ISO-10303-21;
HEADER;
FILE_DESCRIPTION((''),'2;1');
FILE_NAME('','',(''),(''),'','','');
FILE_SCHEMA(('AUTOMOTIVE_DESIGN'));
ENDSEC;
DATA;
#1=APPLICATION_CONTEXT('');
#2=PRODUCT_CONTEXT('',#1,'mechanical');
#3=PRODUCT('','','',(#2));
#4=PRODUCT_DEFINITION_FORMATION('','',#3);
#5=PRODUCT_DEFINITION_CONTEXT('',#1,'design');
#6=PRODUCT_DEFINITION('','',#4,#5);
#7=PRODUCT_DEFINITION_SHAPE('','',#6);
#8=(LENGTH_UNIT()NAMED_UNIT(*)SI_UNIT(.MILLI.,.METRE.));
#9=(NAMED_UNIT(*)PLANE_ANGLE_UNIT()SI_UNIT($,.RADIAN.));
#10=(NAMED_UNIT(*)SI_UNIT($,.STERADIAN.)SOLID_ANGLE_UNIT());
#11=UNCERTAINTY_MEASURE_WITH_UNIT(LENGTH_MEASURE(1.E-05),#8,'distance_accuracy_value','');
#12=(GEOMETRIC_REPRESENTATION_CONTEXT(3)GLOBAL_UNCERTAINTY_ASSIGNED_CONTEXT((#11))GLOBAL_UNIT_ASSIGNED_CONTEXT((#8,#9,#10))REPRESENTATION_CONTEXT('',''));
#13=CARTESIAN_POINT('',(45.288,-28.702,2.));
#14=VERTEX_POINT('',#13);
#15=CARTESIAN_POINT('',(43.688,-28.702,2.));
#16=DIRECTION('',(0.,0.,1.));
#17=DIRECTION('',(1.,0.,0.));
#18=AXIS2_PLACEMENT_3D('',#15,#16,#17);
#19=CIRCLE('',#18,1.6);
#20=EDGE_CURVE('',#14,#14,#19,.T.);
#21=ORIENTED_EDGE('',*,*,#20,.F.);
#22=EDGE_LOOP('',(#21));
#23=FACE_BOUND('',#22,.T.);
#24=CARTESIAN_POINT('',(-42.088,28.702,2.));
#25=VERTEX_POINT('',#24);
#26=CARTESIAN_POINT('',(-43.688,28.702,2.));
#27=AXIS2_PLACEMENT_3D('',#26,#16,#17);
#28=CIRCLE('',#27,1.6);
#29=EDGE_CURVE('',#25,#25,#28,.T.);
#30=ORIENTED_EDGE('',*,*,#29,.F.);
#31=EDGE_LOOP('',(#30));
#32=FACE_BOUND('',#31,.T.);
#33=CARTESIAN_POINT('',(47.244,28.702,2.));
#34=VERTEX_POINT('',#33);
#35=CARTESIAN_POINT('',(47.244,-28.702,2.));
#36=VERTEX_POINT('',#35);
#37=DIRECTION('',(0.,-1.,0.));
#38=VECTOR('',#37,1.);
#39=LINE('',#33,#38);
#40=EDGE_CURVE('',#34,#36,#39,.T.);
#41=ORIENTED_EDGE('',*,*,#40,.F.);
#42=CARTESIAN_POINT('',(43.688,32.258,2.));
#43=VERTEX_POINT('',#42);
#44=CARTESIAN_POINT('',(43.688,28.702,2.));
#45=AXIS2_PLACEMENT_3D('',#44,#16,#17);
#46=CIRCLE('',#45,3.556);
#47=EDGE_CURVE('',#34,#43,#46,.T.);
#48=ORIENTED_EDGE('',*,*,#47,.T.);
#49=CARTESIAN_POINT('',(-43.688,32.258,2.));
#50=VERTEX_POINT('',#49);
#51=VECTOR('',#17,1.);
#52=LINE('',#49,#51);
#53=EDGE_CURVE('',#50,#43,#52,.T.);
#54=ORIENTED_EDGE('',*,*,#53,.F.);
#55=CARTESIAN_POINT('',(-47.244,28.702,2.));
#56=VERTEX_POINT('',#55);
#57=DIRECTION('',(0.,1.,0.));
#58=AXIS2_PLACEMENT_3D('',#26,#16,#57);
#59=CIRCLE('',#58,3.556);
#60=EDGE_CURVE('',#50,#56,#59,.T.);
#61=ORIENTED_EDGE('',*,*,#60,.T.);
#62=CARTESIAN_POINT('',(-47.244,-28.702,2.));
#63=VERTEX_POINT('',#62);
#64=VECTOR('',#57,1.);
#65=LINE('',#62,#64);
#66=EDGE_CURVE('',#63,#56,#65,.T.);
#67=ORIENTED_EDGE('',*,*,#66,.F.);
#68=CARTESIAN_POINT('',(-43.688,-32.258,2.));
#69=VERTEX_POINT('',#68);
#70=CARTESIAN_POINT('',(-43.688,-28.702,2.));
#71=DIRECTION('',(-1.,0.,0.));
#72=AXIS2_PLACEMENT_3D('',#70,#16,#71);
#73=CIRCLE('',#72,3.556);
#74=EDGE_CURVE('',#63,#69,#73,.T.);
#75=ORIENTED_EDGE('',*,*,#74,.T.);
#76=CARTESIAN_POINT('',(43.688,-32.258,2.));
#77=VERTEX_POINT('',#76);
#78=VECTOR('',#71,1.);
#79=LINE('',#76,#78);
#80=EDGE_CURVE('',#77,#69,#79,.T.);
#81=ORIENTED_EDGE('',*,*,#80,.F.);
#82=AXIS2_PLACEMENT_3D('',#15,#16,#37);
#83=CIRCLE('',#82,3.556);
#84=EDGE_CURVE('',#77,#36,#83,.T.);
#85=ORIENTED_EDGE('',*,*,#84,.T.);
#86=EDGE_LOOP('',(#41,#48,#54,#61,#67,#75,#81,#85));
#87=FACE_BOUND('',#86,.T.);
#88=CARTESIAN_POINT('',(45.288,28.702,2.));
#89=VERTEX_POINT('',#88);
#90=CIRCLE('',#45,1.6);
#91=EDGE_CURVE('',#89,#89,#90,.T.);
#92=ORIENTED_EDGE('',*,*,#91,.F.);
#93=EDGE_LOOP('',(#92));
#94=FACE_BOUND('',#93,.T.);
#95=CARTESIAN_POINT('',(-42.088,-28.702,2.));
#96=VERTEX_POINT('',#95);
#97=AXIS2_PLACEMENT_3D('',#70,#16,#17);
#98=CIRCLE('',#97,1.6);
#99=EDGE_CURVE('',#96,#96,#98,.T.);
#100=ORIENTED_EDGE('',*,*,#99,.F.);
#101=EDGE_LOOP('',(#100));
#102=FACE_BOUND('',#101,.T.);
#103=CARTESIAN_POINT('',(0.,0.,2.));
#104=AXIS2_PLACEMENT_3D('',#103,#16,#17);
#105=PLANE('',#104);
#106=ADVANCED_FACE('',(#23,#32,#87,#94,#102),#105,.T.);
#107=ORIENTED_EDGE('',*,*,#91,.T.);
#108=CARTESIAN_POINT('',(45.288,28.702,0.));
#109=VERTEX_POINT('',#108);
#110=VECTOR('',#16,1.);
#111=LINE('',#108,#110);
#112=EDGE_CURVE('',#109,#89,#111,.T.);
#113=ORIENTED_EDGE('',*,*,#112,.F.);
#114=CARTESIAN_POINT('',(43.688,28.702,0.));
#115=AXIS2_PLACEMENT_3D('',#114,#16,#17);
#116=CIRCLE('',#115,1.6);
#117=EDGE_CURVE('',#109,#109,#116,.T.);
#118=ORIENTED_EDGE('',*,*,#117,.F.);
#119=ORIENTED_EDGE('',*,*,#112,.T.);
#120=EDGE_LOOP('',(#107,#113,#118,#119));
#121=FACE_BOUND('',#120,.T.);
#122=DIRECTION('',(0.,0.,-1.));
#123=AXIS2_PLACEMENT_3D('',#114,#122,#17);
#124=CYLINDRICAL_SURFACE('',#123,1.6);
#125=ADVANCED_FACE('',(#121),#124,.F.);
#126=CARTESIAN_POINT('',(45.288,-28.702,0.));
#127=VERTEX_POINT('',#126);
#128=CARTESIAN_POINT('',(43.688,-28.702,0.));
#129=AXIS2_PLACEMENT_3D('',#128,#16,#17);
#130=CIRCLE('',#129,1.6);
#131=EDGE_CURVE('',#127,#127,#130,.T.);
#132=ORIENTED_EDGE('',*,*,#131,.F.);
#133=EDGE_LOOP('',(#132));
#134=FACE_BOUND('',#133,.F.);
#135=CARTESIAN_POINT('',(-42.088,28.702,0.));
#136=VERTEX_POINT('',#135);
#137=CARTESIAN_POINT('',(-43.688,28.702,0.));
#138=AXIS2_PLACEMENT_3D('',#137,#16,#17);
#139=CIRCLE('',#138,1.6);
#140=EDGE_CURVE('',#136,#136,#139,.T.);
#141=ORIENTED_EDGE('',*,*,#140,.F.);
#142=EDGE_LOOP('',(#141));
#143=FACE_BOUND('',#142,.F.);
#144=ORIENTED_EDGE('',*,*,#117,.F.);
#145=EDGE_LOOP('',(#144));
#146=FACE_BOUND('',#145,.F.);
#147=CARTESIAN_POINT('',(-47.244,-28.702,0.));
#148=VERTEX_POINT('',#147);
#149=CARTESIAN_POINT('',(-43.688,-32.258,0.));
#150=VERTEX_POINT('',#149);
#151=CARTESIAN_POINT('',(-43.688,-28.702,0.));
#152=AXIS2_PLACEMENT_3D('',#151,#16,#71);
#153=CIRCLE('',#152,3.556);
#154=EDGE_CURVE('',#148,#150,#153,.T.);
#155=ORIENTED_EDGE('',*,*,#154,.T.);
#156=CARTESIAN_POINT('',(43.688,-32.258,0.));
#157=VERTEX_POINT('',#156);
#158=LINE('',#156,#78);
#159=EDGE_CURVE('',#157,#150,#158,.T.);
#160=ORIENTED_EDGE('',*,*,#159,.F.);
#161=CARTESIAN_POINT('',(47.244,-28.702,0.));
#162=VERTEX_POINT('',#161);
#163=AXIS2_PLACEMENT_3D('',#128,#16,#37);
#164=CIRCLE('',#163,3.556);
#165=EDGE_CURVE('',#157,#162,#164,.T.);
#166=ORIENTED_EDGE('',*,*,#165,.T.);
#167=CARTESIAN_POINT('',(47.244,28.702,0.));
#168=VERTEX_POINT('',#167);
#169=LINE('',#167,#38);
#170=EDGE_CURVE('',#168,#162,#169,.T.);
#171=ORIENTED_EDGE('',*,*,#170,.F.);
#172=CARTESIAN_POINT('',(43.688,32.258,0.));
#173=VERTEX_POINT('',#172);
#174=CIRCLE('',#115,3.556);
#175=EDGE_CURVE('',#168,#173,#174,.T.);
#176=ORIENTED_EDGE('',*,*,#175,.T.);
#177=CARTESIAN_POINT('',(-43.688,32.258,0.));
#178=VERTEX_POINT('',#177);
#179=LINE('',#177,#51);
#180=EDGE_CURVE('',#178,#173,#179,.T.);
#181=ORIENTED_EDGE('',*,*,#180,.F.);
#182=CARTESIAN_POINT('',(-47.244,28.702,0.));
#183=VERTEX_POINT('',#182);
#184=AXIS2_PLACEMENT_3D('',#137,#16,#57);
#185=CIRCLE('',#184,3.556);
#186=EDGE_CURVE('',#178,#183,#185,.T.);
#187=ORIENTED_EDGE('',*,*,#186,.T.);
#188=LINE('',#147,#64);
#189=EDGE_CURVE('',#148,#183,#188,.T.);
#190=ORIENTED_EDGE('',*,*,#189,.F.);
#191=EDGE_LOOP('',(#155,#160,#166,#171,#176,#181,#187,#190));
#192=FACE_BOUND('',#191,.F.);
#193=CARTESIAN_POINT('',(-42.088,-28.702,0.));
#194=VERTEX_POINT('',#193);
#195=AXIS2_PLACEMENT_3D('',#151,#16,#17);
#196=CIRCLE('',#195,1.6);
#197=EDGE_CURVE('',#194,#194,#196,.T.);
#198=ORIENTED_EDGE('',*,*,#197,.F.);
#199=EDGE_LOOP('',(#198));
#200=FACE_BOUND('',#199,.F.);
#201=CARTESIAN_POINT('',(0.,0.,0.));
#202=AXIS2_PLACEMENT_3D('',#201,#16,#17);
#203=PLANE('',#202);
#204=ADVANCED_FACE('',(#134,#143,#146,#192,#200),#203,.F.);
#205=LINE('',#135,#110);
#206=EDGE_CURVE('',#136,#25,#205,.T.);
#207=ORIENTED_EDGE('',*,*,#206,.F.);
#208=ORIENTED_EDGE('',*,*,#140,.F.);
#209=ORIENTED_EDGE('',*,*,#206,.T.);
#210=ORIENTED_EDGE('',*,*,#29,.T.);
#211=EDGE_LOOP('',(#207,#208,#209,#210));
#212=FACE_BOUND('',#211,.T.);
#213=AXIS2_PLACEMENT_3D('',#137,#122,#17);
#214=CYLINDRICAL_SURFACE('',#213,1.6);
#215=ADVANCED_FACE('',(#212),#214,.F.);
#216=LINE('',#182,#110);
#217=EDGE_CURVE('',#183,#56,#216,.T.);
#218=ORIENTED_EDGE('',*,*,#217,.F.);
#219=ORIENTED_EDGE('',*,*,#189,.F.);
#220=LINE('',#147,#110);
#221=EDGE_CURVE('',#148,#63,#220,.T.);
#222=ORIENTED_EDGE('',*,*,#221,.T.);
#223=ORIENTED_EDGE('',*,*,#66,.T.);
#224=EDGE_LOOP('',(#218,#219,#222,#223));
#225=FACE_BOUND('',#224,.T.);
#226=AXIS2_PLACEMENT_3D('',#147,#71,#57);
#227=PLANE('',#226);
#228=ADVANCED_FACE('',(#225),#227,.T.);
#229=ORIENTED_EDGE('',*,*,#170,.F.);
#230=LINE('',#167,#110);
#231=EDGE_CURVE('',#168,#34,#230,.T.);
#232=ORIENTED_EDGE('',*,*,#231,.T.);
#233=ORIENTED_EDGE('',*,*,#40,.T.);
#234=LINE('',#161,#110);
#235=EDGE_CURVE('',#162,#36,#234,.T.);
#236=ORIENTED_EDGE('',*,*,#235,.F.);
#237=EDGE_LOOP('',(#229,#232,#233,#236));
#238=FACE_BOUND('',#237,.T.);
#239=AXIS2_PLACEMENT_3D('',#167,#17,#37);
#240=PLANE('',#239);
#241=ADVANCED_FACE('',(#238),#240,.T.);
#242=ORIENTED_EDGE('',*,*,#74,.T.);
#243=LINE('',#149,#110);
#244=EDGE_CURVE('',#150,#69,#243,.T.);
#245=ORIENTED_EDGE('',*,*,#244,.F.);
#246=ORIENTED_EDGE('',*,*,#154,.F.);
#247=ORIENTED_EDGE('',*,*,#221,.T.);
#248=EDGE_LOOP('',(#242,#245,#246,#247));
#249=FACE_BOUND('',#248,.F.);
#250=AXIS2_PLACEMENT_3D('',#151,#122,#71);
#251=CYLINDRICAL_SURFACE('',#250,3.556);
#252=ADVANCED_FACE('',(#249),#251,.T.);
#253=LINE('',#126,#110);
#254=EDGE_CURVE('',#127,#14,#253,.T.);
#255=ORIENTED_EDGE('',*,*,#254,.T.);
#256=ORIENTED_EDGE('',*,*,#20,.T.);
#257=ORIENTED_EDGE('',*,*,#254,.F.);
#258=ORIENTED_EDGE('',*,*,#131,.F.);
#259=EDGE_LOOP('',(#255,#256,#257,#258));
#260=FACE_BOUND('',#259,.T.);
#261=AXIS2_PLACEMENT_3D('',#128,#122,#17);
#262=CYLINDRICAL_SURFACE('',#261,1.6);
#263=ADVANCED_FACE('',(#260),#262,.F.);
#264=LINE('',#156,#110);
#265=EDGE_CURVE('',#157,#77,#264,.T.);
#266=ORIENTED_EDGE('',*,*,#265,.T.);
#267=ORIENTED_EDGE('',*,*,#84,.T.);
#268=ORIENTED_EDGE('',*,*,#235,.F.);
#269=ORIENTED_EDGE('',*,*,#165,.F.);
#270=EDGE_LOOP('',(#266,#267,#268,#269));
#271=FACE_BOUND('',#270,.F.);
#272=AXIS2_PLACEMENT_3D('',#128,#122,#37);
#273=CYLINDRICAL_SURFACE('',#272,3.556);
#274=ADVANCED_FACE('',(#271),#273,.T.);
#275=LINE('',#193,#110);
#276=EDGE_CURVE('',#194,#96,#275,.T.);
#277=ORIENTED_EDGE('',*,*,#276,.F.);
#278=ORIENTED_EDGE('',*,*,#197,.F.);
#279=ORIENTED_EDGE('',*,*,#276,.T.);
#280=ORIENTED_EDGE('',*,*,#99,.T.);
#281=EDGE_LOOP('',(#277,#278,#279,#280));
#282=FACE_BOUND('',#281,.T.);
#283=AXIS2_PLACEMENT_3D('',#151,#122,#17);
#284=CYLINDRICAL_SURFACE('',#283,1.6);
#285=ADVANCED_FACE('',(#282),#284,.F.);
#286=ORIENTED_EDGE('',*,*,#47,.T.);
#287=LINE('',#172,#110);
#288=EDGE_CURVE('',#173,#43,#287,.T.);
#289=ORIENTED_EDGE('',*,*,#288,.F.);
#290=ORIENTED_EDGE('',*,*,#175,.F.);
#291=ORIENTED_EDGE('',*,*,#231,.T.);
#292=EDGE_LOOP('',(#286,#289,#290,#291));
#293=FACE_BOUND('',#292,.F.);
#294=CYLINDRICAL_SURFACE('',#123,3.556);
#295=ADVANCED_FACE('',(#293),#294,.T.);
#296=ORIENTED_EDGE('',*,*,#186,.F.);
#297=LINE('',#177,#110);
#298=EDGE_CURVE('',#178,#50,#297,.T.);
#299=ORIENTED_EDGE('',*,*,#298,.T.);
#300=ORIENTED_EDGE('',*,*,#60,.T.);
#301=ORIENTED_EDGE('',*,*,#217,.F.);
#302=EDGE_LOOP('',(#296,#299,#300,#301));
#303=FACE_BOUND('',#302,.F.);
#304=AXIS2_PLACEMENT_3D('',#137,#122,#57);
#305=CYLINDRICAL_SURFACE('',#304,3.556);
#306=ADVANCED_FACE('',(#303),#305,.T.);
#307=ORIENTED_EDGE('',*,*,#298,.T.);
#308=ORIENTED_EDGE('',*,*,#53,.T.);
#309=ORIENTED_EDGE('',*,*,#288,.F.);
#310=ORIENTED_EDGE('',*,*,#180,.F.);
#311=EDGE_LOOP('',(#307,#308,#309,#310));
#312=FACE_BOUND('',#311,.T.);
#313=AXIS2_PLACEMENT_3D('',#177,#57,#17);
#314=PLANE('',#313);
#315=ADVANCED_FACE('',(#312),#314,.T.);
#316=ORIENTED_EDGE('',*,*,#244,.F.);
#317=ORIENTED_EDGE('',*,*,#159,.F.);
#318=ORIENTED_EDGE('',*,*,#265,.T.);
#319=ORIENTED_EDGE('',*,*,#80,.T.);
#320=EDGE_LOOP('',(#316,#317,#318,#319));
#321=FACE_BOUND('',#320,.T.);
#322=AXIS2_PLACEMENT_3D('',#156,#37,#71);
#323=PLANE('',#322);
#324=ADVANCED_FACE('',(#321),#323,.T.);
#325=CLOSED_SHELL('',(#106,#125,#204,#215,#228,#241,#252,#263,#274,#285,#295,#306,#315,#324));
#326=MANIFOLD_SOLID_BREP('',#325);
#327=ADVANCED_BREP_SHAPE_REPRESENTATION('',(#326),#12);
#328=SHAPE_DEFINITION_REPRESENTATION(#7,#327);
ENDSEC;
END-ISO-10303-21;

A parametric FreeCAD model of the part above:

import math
import FreeCAD as App
import Part
import Sketcher

V = App.Vector
Q = App.Units.Quantity

doc = App.newDocument("Part")
body = doc.addObject("PartDesign::Body", "Body")

# Sketch on XY plane
sketch1 = body.newObject("Sketcher::SketchObject", "Sketch")
sketch1.AttachmentSupport = (doc.getObject("XY_Plane"), [""])
sketch1.MapMode = "FlatFace"
sketch1.addGeometry([
    Part.LineSegment(V(43.688, 32.258, 0), V(-43.688, 32.258, 0)),  # 0
    Part.ArcOfCircle(Part.Circle(V(-43.688, 28.702, 0), V(0, 0, 1), 3.556), math.radians(90), math.radians(180)),  # 1
    Part.LineSegment(V(-47.244, 28.702, 0), V(-47.244, -28.702, 0)),  # 2
    Part.ArcOfCircle(Part.Circle(V(-43.688, -28.702, 0), V(0, 0, 1), 3.556), math.radians(180), math.radians(270)),  # 3
    Part.LineSegment(V(-43.688, -32.258, 0), V(43.688, -32.258, 0)),  # 4
    Part.ArcOfCircle(Part.Circle(V(43.688, -28.702, 0), V(0, 0, 1), 3.556), math.radians(-90), math.radians(0)),  # 5
    Part.LineSegment(V(47.244, -28.702, 0), V(47.244, 28.702, 0)),  # 6
    Part.ArcOfCircle(Part.Circle(V(43.688, 28.702, 0), V(0, 0, 1), 3.556), math.radians(0), math.radians(90)),  # 7
    Part.Circle(V(-43.688, -28.702, 0), V(0, 0, 1), 1.6),  # 8
    Part.Circle(V(43.688, -28.702, 0), V(0, 0, 1), 1.6),  # 9
    Part.Circle(V(-43.688, 28.702, 0), V(0, 0, 1), 1.6),  # 10
    Part.Circle(V(43.688, 28.702, 0), V(0, 0, 1), 1.6),  # 11
], False)
sketch1.addConstraint([
    Sketcher.Constraint("Tangent", 0, 2, 1, 1),
    Sketcher.Constraint("Tangent", 1, 2, 2, 1),
    Sketcher.Constraint("Tangent", 2, 2, 3, 1),
    Sketcher.Constraint("Tangent", 3, 2, 4, 1),
    Sketcher.Constraint("Tangent", 4, 2, 5, 1),
    Sketcher.Constraint("Tangent", 5, 2, 6, 1),
    Sketcher.Constraint("Tangent", 6, 2, 7, 1),
    Sketcher.Constraint("Tangent", 7, 2, 0, 1),
    Sketcher.Constraint("Horizontal", 0),
    Sketcher.Constraint("Vertical", 2),
    Sketcher.Constraint("Horizontal", 4),
    Sketcher.Constraint("Vertical", 6),
    Sketcher.Constraint("Coincident", 8, 3, 3, 3),
    Sketcher.Constraint("Coincident", 9, 3, 5, 3),
    Sketcher.Constraint("Coincident", 10, 3, 1, 3),
    Sketcher.Constraint("Coincident", 11, 3, 7, 3),
    Sketcher.Constraint("Equal", 1, 3),
    Sketcher.Constraint("Equal", 3, 5),
    Sketcher.Constraint("Equal", 5, 7),
    Sketcher.Constraint("Equal", 8, 9),
    Sketcher.Constraint("Equal", 9, 10),
    Sketcher.Constraint("Equal", 10, 11),
    Sketcher.Constraint("Symmetric", 1, 3, 5, 3, -1, 1),
    Sketcher.Constraint("Radius", 1, Q("0.14 in")),
    Sketcher.Constraint("DistanceX", 0, 2, 0, 1, Q("3.44 in")),
    Sketcher.Constraint("DistanceY", 2, 2, 2, 1, Q("2.26 in")),
    Sketcher.Constraint("Diameter", 8, Q("3.2 mm")),
])
pad1 = body.newObject("PartDesign::Pad", "Pad")
pad1.Profile = sketch1
pad1.Length = 2

doc.recompute()
